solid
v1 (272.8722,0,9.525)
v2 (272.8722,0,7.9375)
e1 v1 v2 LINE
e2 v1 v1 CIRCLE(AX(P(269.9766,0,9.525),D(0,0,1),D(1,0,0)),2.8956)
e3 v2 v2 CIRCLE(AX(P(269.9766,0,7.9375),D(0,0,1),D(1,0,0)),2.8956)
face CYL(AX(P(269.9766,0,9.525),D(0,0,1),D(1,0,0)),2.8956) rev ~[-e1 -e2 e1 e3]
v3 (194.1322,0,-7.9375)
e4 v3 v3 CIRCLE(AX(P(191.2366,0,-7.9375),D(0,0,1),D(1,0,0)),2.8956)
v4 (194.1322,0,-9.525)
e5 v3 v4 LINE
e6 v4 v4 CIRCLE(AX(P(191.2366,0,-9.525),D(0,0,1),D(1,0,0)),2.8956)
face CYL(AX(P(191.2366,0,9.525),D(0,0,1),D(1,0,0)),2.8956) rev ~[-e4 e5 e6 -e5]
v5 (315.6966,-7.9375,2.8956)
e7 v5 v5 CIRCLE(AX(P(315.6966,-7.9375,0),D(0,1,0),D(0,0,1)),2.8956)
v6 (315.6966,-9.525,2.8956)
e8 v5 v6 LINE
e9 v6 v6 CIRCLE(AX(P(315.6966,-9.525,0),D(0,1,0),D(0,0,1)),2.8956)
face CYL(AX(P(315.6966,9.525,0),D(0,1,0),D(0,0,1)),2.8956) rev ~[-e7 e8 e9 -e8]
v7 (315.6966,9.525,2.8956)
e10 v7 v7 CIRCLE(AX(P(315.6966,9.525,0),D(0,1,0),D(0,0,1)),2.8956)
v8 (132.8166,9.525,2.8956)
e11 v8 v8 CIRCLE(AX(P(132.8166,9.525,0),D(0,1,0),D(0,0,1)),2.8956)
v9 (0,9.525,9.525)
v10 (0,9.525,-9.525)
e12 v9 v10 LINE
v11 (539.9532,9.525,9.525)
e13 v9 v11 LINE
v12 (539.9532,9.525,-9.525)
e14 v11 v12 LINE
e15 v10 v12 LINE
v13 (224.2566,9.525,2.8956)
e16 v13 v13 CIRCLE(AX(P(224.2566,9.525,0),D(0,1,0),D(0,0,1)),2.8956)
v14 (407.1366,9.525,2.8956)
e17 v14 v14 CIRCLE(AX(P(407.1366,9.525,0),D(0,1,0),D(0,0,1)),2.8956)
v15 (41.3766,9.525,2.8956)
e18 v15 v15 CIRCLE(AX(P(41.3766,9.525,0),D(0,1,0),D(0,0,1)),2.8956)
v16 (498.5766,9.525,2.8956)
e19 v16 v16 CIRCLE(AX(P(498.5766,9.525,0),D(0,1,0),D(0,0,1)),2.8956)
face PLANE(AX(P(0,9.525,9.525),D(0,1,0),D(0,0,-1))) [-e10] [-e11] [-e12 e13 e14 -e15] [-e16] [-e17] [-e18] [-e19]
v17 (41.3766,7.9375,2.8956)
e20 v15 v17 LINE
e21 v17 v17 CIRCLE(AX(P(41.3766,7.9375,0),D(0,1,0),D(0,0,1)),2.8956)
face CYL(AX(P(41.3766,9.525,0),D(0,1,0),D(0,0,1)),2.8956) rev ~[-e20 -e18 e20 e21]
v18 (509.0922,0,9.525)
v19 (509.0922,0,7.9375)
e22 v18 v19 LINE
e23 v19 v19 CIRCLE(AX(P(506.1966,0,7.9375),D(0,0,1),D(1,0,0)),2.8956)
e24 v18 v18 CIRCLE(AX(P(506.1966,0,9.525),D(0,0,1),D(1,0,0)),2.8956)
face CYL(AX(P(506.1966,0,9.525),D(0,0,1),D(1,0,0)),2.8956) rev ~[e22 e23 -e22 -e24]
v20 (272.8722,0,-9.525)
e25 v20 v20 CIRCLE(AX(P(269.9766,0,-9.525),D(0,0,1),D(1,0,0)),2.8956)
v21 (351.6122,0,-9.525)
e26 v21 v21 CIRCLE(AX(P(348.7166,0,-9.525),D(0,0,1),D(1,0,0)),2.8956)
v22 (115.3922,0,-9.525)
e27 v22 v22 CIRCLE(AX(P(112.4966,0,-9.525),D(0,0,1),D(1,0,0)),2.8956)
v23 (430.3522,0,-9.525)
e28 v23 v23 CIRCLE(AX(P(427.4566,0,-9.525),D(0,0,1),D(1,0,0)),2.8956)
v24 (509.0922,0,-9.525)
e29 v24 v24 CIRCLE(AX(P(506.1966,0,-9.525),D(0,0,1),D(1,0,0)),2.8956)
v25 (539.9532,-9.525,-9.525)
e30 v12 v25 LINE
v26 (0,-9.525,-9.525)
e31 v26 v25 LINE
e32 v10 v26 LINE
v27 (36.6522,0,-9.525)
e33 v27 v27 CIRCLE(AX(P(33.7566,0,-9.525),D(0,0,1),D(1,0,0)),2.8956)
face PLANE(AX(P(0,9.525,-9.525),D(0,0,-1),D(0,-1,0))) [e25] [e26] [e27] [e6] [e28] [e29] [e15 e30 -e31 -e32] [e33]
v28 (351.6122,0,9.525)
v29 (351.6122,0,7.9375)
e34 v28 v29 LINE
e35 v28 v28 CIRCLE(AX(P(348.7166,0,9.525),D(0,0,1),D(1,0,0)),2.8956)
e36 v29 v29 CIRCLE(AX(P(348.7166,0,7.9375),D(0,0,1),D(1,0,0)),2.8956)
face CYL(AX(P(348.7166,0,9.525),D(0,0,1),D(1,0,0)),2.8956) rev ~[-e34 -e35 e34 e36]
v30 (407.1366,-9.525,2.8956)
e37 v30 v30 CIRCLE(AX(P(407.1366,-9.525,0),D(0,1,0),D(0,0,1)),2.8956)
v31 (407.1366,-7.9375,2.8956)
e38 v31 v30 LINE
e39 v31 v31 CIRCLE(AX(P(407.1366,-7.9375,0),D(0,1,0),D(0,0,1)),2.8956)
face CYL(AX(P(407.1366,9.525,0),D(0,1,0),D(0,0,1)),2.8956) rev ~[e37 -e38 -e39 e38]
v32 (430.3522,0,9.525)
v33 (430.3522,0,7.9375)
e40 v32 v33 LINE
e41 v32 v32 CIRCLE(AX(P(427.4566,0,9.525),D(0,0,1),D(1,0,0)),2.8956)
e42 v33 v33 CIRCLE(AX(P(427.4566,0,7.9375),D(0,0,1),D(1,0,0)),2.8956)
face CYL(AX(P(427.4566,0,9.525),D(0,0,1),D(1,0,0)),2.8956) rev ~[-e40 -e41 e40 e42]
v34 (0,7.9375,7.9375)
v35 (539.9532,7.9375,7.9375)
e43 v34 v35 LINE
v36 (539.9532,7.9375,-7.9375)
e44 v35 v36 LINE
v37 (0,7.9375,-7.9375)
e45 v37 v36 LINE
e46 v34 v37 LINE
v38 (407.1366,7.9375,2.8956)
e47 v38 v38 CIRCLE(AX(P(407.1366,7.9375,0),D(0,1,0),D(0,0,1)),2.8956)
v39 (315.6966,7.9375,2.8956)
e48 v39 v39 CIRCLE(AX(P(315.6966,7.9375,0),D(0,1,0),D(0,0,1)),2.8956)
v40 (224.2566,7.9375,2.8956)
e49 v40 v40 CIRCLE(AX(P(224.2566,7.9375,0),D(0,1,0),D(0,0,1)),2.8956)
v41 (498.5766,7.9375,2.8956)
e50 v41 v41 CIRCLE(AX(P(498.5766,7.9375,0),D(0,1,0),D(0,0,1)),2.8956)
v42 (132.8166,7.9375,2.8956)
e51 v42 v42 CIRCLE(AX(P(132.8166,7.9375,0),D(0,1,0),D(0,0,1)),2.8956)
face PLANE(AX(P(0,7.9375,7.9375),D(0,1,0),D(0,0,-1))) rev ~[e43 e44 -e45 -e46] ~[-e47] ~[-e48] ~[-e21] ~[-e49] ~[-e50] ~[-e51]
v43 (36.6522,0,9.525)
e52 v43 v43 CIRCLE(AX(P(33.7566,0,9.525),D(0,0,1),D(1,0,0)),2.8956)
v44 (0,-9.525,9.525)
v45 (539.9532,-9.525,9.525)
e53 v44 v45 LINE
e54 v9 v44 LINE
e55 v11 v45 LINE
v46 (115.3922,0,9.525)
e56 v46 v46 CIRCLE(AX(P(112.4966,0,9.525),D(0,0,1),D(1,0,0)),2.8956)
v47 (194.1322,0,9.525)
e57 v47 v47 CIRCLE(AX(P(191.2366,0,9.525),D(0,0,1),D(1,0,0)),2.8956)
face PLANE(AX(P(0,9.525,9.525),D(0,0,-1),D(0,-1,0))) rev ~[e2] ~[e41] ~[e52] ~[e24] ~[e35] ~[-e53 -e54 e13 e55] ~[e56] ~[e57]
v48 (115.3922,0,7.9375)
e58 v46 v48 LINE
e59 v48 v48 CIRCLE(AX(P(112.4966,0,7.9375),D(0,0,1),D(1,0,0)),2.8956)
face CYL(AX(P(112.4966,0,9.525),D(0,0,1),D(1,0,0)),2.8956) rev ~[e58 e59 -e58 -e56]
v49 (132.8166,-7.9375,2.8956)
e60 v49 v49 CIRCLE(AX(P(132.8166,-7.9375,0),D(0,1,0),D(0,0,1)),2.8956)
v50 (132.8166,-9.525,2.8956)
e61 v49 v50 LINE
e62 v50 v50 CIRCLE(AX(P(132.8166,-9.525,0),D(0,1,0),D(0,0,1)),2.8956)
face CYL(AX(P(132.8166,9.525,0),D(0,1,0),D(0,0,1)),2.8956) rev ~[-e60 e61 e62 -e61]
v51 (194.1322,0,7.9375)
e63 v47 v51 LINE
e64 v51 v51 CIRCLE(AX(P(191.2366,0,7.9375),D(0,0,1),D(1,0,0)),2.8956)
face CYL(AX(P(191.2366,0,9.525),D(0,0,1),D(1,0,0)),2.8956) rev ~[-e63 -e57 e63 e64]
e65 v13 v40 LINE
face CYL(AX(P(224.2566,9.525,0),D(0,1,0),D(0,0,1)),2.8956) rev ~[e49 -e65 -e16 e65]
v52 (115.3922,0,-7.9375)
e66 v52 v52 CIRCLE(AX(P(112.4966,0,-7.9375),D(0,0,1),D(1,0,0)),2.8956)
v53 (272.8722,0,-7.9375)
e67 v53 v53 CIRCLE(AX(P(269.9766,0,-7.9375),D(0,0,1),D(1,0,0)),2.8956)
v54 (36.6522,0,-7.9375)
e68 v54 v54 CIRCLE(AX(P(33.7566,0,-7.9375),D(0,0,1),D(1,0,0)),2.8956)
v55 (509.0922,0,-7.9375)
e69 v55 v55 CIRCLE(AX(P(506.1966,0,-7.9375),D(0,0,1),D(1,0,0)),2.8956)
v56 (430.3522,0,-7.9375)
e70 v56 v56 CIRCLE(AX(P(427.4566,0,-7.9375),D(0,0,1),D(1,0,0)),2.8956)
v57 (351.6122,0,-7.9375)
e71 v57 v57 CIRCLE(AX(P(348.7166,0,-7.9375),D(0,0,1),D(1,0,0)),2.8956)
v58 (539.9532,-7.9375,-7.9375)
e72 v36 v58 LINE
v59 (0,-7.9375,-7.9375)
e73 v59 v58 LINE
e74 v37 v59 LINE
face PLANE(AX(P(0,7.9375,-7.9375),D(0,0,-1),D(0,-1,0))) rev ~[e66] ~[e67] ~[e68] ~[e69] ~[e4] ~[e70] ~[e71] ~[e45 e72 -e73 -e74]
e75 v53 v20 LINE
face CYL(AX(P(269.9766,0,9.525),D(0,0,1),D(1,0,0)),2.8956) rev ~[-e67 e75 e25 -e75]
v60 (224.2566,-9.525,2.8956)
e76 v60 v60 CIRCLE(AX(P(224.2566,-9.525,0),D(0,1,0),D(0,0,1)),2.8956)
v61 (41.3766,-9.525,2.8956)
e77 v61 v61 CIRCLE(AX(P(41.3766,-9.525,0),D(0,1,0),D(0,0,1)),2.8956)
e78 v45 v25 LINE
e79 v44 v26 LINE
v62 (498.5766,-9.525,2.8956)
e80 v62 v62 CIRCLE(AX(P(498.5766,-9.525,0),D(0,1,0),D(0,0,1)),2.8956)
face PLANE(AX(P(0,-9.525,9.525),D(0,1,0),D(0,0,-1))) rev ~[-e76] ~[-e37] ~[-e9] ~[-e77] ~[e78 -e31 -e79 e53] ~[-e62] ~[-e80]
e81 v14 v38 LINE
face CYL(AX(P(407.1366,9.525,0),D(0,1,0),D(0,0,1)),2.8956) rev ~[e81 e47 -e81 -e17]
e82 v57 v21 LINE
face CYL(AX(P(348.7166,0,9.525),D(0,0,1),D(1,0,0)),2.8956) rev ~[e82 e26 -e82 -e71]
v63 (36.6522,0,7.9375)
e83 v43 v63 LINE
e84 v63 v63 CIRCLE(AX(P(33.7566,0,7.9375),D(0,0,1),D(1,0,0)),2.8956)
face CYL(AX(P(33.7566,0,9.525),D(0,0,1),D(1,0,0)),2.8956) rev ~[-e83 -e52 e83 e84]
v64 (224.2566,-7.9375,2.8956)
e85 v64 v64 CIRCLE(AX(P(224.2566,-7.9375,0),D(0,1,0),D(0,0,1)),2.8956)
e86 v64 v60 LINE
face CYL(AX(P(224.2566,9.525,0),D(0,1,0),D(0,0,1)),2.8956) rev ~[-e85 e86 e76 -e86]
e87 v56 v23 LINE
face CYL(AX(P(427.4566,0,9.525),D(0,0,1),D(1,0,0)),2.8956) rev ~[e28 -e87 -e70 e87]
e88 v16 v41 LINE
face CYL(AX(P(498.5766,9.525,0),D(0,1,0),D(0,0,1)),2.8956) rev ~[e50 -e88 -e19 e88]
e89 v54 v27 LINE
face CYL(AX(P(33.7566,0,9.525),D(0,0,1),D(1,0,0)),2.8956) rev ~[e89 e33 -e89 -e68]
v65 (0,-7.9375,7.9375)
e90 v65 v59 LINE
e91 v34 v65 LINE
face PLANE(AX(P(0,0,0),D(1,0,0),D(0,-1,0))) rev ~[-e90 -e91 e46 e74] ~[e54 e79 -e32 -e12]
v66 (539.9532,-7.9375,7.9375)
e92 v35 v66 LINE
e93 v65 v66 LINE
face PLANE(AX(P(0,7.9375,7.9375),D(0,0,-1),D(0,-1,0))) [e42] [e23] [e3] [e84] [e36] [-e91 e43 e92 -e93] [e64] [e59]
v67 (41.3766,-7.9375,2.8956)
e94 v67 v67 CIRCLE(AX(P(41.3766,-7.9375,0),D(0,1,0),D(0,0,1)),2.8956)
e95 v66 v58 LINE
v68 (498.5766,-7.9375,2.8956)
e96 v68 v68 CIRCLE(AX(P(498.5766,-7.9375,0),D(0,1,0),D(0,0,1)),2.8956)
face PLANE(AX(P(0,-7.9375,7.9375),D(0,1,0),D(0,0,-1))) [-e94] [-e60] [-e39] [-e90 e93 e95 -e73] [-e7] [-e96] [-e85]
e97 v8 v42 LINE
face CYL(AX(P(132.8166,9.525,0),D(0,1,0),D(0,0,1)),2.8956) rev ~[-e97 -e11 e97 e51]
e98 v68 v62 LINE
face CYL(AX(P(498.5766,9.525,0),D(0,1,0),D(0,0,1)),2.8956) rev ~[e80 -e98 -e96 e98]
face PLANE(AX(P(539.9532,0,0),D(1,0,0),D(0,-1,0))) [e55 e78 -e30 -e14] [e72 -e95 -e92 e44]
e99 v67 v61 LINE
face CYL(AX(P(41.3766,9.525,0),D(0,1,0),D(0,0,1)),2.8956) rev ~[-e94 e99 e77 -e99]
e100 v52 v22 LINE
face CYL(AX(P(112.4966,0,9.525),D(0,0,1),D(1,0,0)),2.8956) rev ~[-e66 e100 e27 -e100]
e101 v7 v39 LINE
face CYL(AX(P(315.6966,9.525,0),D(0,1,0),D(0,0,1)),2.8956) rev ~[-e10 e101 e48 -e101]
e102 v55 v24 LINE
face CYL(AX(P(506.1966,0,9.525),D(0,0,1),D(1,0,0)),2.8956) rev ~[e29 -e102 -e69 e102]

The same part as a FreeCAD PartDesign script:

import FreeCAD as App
import Part
import Sketcher
Q = App.Units.Quantity

doc = App.newDocument("Part")
params = doc.addObject("Spreadsheet::Sheet", "Params")
for row, (alias, value) in enumerate([
    ("sketch1_width", "0.75 in"),
    ("sketch1_width2", "0.625 in"),
    ("pad1_length", "21.258 in"),
    ("sketch2_diameter", "0.228 in"),
    ("linearpattern_pitch", "3.1 in"),
    ("sketch3_diameter", "0.228 in"),
    ("linearpattern2_pitch", "3.6 in"),
], start=1):
    params.set(f"A{row}", alias)
    params.set(f"B{row}", "=" + value)
    params.setAlias(f"B{row}", alias)

body = doc.addObject("PartDesign::Body", "Body")

# Sketch on YZ plane
sketch1 = body.newObject("Sketcher::SketchObject", "Sketch")
sketch1.AttachmentSupport = (doc.getObject("YZ_Plane"), [""])
sketch1.MapMode = "FlatFace"
sketch1.addGeometry([
    Part.LineSegment(App.Vector(10, -10, 0), App.Vector(10, 10, 0)),  # 0
    Part.LineSegment(App.Vector(10, 10, 0), App.Vector(-10, 10, 0)),  # 1
    Part.LineSegment(App.Vector(-10, 10, 0), App.Vector(-10, -10, 0)),  # 2
    Part.LineSegment(App.Vector(-10, -10, 0), App.Vector(10, -10, 0)),  # 3
    Part.LineSegment(App.Vector(-8, 8, 0), App.Vector(8, 8, 0)),  # 4
    Part.LineSegment(App.Vector(8, 8, 0), App.Vector(8, -8, 0)),  # 5
    Part.LineSegment(App.Vector(8, -8, 0), App.Vector(-8, -8, 0)),  # 6
    Part.LineSegment(App.Vector(-8, -8, 0), App.Vector(-8, 8, 0)),  # 7
], False)
sketch1.addConstraint([
    Sketcher.Constraint("Coincident", 0, 2, 1, 1),
    Sketcher.Constraint("Coincident", 1, 2, 2, 1),
    Sketcher.Constraint("Coincident", 2, 2, 3, 1),
    Sketcher.Constraint("Coincident", 3, 2, 0, 1),
    Sketcher.Constraint("Coincident", 4, 2, 5, 1),
    Sketcher.Constraint("Coincident", 5, 2, 6, 1),
    Sketcher.Constraint("Coincident", 6, 2, 7, 1),
    Sketcher.Constraint("Coincident", 7, 2, 4, 1),
    Sketcher.Constraint("Vertical", 0),
    Sketcher.Constraint("Horizontal", 1),
    Sketcher.Constraint("Vertical", 2),
    Sketcher.Constraint("Horizontal", 3),
    Sketcher.Constraint("Horizontal", 4),
    Sketcher.Constraint("Vertical", 5),
    Sketcher.Constraint("Horizontal", 6),
    Sketcher.Constraint("Vertical", 7),
    Sketcher.Constraint("Symmetric", 0, 2, 2, 2, -1, 1),
    Sketcher.Constraint("Symmetric", 4, 2, 6, 2, -1, 1),
    Sketcher.Constraint("Equal", 3, 0),
    Sketcher.Constraint("Equal", 6, 5),
    Sketcher.Constraint("DistanceX", 1, 2, 1, 1, Q("0.75 in")),
    Sketcher.Constraint("DistanceX", 4, 1, 4, 2, Q("0.625 in")),
])
sketch1.setExpression("Constraints[20]", "Params.sketch1_width")
sketch1.setExpression("Constraints[21]", "Params.sketch1_width2")
pad1 = body.newObject("PartDesign::Pad", "Pad")
pad1.Profile = sketch1
pad1.setExpression("Length", "Params.pad1_length")

# Sketch on XY plane
sketch2 = body.newObject("Sketcher::SketchObject", "Sketch001")
sketch2.AttachmentSupport = (doc.getObject("XY_Plane"), [""])
sketch2.MapMode = "FlatFace"
sketch2.AttachmentOffset = App.Placement(App.Vector(0, 0, 0.375 * 25.4), App.Rotation())
sketch2.addGeometry(Part.Circle(App.Vector(506.2, 0, 0), App.Vector(0, 0, 1), 2.9), False)
sketch2.addConstraint([
    Sketcher.Constraint("PointOnObject", 0, 3, -1),
    Sketcher.Constraint("Diameter", 0, Q("0.228 in")),
    Sketcher.Constraint("DistanceX", -1, 1, 0, 3, Q("19.929 in")),
])
sketch2.setExpression("Constraints[1]", "Params.sketch2_diameter")
pocket1 = body.newObject("PartDesign::Pocket", "Pocket")
pocket1.Profile = sketch2
pocket1.Type = "ThroughAll"
doc.recompute()

linearpattern = body.newObject("PartDesign::LinearPattern", "LinearPattern")
linearpattern.Originals = [pocket1]
linearpattern.Direction = (doc.getObject("X_Axis"), [""])
linearpattern.Mode = "offset"
linearpattern.setExpression("Offset", "Params.linearpattern_pitch")
linearpattern.Occurrences = 7
linearpattern.Reversed = True
body.Tip = linearpattern

# Sketch on XZ plane
sketch3 = body.newObject("Sketcher::SketchObject", "Sketch002")
sketch3.AttachmentSupport = (doc.getObject("XZ_Plane"), [""])
sketch3.MapMode = "FlatFace"
sketch3.AttachmentOffset = App.Placement(App.Vector(0, 0, -0.375 * 25.4), App.Rotation())
sketch3.addGeometry(Part.Circle(App.Vector(41.4, 0, 0), App.Vector(0, 0, 1), 2.9), False)
sketch3.addConstraint([
    Sketcher.Constraint("PointOnObject", 0, 3, -1),
    Sketcher.Constraint("Diameter", 0, Q("0.228 in")),
    Sketcher.Constraint("DistanceX", -1, 1, 0, 3, Q("1.629 in")),
])
sketch3.setExpression("Constraints[1]", "Params.sketch3_diameter")
pocket2 = body.newObject("PartDesign::Pocket", "Pocket001")
pocket2.Profile = sketch3
pocket2.Type = "ThroughAll"
pocket2.Reversed = True
doc.recompute()

linearpattern2 = body.newObject("PartDesign::LinearPattern", "LinearPattern001")
linearpattern2.Originals = [pocket2]
linearpattern2.Direction = (doc.getObject("X_Axis"), [""])
linearpattern2.Mode = "offset"
linearpattern2.setExpression("Offset", "Params.linearpattern2_pitch")
linearpattern2.Occurrences = 6
body.Tip = linearpattern2

doc.recompute()
